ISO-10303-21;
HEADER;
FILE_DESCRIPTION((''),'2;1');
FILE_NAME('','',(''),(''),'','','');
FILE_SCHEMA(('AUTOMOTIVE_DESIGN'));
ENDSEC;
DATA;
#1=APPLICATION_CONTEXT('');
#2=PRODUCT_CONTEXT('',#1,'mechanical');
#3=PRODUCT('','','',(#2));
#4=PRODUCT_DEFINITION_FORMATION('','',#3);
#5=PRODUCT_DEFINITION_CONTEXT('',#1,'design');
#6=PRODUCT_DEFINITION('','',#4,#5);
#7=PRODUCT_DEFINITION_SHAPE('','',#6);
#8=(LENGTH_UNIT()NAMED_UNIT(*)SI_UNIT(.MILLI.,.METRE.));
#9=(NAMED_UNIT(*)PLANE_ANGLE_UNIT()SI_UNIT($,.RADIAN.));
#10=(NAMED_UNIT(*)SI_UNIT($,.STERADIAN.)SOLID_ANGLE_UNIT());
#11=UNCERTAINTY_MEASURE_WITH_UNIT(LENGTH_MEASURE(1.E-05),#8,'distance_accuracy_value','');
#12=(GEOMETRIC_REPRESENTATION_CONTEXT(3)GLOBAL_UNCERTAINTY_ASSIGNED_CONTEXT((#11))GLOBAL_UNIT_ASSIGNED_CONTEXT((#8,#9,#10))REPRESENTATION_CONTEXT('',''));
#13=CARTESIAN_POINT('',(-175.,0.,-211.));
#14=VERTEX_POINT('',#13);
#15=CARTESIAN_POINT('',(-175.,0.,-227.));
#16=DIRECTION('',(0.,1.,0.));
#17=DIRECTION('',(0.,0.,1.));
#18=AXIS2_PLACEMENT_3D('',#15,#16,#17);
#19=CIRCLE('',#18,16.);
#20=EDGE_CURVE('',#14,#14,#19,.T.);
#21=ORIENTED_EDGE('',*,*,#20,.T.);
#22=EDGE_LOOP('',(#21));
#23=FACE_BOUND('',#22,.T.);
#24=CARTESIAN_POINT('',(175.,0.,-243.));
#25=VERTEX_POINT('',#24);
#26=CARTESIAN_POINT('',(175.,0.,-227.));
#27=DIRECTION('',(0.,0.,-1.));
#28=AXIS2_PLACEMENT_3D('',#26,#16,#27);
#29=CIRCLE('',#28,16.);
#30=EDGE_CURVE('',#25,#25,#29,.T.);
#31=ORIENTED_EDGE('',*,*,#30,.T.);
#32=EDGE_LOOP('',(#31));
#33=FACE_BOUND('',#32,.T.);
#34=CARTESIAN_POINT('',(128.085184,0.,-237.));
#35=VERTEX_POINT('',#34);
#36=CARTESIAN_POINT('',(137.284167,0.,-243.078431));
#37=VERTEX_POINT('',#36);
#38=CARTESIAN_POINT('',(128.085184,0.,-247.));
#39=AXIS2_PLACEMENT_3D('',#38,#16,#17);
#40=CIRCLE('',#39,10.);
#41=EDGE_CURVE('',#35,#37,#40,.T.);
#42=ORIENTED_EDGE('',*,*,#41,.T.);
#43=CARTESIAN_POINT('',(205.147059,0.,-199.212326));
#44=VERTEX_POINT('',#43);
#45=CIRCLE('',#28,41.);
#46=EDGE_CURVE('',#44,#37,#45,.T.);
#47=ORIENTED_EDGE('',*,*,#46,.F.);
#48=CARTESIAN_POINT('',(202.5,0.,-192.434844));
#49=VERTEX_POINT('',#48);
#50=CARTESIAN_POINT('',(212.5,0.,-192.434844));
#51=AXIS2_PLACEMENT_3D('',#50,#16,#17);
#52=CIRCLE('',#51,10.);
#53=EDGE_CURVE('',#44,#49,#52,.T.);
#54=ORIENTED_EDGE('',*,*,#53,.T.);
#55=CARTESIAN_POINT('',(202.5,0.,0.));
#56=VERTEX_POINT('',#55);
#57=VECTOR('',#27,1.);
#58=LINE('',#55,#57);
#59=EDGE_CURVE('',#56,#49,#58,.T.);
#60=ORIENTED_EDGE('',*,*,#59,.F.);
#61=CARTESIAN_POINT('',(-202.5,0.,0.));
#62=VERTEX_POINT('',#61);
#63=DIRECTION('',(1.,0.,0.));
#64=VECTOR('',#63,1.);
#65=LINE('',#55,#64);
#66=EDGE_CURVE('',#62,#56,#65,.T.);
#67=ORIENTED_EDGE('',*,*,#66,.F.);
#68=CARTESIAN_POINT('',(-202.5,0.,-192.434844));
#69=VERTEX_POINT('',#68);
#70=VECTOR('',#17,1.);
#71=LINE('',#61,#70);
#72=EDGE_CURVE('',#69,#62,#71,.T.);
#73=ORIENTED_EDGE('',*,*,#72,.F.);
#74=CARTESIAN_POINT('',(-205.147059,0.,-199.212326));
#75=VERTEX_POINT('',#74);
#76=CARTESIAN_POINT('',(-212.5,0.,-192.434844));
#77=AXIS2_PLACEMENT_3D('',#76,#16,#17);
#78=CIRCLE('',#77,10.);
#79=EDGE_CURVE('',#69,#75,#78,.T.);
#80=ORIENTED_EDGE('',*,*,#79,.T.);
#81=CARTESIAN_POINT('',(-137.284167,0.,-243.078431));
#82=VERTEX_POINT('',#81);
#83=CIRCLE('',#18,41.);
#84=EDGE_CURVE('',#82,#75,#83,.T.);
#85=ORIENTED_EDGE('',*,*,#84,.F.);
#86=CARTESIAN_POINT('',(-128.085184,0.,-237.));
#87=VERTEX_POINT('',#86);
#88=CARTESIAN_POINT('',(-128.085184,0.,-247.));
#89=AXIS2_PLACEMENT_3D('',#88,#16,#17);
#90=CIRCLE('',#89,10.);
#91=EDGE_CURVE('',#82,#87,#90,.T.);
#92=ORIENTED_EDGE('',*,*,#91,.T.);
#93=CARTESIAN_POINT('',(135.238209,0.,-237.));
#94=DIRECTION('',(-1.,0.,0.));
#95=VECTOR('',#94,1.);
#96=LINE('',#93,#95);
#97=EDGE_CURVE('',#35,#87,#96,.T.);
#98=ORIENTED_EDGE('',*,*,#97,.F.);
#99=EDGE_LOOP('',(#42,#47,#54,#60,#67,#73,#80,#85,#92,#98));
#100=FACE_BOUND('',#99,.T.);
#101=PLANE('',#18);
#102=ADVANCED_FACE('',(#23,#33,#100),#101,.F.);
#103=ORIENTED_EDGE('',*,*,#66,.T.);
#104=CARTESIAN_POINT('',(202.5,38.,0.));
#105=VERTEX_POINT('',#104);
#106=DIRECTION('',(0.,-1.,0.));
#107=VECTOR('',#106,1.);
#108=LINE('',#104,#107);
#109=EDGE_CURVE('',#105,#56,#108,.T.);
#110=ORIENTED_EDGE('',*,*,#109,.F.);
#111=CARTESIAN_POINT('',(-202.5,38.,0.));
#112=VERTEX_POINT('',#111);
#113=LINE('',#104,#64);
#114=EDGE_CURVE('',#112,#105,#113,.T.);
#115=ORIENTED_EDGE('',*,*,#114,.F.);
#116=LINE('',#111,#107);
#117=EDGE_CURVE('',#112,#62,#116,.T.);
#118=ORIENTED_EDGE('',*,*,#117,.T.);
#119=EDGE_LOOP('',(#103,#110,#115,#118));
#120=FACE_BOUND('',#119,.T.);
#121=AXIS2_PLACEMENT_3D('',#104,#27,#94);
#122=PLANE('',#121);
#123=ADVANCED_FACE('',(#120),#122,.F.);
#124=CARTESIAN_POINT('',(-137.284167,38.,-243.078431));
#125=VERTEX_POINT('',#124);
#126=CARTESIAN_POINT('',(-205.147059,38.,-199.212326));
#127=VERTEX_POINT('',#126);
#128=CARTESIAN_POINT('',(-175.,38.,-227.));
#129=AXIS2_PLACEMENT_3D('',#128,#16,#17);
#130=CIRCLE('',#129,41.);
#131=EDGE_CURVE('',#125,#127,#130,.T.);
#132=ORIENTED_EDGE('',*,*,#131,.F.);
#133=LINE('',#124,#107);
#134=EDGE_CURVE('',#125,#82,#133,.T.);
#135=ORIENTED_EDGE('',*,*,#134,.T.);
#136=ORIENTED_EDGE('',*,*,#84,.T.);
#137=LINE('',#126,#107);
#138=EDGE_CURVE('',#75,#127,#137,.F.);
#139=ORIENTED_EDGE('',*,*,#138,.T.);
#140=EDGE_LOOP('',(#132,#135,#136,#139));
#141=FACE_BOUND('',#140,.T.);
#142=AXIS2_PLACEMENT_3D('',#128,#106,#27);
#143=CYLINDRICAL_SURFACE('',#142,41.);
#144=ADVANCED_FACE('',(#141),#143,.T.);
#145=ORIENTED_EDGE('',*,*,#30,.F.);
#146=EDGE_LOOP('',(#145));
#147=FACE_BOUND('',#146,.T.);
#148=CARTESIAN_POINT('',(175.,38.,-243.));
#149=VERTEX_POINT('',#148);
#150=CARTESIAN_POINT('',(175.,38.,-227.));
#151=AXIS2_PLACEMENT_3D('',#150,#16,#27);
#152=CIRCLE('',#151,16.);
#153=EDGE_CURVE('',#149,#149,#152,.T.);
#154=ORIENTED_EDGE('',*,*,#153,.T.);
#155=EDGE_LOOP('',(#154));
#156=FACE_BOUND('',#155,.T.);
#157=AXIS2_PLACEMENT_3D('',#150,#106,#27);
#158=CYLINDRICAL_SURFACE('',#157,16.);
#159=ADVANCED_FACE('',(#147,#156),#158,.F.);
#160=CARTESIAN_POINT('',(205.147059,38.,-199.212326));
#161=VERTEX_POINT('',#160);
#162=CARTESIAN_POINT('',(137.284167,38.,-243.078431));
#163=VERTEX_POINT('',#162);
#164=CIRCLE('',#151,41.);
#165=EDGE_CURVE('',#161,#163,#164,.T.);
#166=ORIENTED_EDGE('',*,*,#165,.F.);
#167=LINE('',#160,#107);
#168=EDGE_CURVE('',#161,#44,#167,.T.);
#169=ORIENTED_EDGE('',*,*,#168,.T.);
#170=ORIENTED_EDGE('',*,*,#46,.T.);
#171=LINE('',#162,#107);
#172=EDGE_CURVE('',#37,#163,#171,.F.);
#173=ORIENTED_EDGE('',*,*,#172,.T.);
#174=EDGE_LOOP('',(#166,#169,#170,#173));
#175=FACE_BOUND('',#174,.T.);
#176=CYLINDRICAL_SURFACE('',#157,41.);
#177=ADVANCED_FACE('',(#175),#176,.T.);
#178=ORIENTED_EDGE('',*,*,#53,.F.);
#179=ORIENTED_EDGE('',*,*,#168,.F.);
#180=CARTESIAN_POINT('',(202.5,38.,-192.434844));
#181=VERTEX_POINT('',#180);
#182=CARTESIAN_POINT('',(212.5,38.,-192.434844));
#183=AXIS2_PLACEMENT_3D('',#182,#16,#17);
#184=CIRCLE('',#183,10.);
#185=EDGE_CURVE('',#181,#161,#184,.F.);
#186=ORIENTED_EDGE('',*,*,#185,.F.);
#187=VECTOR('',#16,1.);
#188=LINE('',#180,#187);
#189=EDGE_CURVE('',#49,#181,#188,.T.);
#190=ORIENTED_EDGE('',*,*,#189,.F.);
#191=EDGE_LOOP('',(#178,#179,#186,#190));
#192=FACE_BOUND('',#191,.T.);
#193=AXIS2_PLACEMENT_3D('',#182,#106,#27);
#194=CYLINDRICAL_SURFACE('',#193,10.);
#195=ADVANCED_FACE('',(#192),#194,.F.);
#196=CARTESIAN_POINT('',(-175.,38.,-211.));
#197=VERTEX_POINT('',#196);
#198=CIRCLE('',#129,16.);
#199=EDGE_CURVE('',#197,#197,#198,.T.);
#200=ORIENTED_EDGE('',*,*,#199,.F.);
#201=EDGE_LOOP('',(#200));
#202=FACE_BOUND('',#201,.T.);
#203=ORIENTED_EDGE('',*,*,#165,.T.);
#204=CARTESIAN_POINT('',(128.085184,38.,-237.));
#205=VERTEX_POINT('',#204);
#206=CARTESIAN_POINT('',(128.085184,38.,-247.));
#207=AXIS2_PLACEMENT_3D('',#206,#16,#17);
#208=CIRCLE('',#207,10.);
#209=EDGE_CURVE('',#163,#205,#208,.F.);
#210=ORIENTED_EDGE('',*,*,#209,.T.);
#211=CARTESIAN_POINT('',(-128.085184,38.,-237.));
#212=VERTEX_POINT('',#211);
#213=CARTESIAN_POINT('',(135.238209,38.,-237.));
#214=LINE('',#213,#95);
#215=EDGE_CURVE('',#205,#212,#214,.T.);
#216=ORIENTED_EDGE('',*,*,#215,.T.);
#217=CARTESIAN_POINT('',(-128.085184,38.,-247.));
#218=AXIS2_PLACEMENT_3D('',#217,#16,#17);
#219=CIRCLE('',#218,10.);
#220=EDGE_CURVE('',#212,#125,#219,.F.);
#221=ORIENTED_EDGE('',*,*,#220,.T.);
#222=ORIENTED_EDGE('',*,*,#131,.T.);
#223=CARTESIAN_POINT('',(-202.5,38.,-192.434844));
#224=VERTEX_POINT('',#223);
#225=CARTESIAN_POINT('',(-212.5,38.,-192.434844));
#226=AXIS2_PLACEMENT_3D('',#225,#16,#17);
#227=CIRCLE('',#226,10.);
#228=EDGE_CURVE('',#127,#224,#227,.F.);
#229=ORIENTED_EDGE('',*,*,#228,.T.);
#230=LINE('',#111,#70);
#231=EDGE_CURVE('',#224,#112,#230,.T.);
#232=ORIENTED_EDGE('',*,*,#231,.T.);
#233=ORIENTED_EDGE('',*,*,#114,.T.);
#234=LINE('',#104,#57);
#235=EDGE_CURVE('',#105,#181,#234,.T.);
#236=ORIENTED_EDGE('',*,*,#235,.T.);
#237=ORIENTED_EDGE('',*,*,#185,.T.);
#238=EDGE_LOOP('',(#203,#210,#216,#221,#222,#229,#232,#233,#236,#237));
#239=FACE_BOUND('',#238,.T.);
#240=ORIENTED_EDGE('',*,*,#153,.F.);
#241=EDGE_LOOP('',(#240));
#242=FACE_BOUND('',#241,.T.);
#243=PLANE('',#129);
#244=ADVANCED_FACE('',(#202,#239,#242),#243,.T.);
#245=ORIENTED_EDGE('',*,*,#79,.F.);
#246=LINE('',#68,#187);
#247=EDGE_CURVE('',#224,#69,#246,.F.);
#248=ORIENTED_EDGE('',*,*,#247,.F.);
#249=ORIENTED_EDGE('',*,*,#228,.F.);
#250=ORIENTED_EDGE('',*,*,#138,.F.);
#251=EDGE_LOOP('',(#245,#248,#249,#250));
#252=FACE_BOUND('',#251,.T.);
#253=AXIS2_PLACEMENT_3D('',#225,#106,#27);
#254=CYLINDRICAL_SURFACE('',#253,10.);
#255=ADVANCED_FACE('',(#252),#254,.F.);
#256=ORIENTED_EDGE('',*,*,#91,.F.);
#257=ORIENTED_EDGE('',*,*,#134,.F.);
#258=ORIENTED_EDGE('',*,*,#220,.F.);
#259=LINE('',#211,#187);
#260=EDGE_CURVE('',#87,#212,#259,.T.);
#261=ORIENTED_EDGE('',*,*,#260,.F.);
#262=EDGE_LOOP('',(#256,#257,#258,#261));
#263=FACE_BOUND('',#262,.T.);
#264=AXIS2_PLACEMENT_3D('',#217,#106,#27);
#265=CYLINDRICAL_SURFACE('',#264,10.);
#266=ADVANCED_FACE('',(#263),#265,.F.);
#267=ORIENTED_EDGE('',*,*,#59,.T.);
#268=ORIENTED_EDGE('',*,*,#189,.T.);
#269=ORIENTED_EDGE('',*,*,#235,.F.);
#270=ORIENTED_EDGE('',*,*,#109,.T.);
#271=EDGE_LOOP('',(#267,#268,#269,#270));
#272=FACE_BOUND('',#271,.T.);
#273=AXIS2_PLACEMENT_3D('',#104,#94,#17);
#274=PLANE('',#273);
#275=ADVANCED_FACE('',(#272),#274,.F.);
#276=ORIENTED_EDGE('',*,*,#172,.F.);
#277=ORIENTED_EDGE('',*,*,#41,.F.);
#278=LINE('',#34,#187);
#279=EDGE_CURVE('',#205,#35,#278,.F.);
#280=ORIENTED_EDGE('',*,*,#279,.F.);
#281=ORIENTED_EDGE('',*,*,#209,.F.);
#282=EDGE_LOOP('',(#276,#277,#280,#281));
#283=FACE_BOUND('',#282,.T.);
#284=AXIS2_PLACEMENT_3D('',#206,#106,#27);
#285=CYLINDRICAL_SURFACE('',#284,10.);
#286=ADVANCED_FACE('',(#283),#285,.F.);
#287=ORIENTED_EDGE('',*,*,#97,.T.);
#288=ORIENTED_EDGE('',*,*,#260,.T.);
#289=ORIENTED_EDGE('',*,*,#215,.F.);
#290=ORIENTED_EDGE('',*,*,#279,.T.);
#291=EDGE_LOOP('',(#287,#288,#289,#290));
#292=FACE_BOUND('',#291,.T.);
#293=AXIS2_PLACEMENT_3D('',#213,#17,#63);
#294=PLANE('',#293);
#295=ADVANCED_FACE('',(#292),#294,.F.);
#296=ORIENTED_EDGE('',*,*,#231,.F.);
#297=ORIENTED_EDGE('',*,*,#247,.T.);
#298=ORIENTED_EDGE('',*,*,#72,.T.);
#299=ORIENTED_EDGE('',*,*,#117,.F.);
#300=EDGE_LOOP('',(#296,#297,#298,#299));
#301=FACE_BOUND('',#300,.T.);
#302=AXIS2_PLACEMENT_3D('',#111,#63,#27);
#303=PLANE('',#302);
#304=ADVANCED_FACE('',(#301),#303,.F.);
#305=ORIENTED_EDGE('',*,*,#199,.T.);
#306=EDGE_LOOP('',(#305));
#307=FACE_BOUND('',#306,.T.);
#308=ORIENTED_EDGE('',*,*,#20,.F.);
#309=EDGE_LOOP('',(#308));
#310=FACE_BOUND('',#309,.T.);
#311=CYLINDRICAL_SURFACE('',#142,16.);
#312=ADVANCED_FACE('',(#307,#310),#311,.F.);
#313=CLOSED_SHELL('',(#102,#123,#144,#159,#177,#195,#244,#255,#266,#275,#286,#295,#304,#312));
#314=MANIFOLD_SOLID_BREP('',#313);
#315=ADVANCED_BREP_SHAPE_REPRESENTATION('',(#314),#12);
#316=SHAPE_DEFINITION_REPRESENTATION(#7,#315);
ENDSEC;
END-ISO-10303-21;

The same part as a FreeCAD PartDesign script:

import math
import FreeCAD as App
import Part
import Sketcher
from FreeCAD import Vector
Q = App.Units.Quantity


def edges_at(feature, points):
    """Names of the edges that pass closest to the given points."""
    edges = feature.Shape.Edges
    near = lambda p: min(range(len(edges)), key=lambda i: edges[i].distToShape(Part.Vertex(*p))[0])
    return sorted({f"Edge{near(p) + 1}" for p in points})

doc = App.newDocument("Part")
body = doc.addObject("PartDesign::Body", "Body")

# Sketch on XZ plane
sketch1 = doc.addObject("Sketcher::SketchObject", "Sketch")
body.addObject(sketch1)
sketch1.AttachmentSupport = (doc.XZ_Plane, [""])
sketch1.MapMode = "FlatFace"
sketch1.addGeometry([
    Part.LineSegment(Vector(-202, 0, 0), Vector(202, 0, 0)),  # 0
    Part.LineSegment(Vector(202, 0, 0), Vector(202, -197, 0)),  # 1
    Part.ArcOfCircle(Part.Circle(Vector(175, -227, 0), Vector(0, 0, 1), 41), math.radians(-166), math.radians(48)),  # 2
    Part.LineSegment(Vector(135, -237, 0), Vector(-135, -237, 0)),  # 3
    Part.ArcOfCircle(Part.Circle(Vector(-175, -227, 0), Vector(0, 0, 1), 41), math.radians(132), math.radians(346)),  # 4
    Part.LineSegment(Vector(-202, -197, 0), Vector(-202, 0, 0)),  # 5
    Part.Circle(Vector(175, -227, 0), Vector(0, 0, 1), 16),  # 6
    Part.Circle(Vector(-175, -227, 0), Vector(0, 0, 1), 16),  # 7
], False)
sketch1.addConstraint([
    Sketcher.Constraint("Coincident", 0, 2, 1, 1),
    Sketcher.Constraint("Coincident", 1, 2, 2, 2),
    Sketcher.Constraint("Coincident", 2, 1, 3, 1),
    Sketcher.Constraint("Coincident", 3, 2, 4, 2),
    Sketcher.Constraint("Coincident", 4, 1, 5, 1),
    Sketcher.Constraint("Coincident", 5, 2, 0, 1),
    Sketcher.Constraint("Horizontal", 0),
    Sketcher.Constraint("Vertical", 1),
    Sketcher.Constraint("Horizontal", 3),
    Sketcher.Constraint("Vertical", 5),
    Sketcher.Constraint("Coincident", 6, 3, 2, 3),
    Sketcher.Constraint("Coincident", 7, 3, 4, 3),
    Sketcher.Constraint("Equal", 2, 4),
    Sketcher.Constraint("Equal", 6, 7),
    Sketcher.Constraint("Symmetric", 0, 2, 5, 2, -1, 1),
    Sketcher.Constraint("Symmetric", 2, 3, 4, 3, -2),
    Sketcher.Constraint("Diameter", 6, Q("32 mm")),
    Sketcher.Constraint("Radius", 2, Q("41 mm")),
    Sketcher.Constraint("DistanceX", 0, 1, 0, 2, Q("405 mm")),
    Sketcher.Constraint("DistanceX", -1, 1, 2, 3, Q("175 mm")),
    Sketcher.Constraint("DistanceY", 2, 3, -1, 1, Q("227 mm")),
    Sketcher.Constraint("DistanceY", 2, 1, -1, 1, Q("237 mm")),
])
pad1 = doc.addObject("PartDesign::Pad", "Pad")
body.addObject(pad1)
pad1.Profile = sketch1
pad1.Length = 38
pad1.Reversed = True
doc.recompute()

fillet = doc.addObject("PartDesign::Fillet", "Fillet")
body.addObject(fillet)
fillet.Base = (pad1, edges_at(pad1, [
    (-202.5, 19, -196.59),
    (-135.238, 19, -237),
    (135.238, 19, -237),
    (202.5, 19, -196.59),
]))
fillet.Radius = 10

doc.recompute()
